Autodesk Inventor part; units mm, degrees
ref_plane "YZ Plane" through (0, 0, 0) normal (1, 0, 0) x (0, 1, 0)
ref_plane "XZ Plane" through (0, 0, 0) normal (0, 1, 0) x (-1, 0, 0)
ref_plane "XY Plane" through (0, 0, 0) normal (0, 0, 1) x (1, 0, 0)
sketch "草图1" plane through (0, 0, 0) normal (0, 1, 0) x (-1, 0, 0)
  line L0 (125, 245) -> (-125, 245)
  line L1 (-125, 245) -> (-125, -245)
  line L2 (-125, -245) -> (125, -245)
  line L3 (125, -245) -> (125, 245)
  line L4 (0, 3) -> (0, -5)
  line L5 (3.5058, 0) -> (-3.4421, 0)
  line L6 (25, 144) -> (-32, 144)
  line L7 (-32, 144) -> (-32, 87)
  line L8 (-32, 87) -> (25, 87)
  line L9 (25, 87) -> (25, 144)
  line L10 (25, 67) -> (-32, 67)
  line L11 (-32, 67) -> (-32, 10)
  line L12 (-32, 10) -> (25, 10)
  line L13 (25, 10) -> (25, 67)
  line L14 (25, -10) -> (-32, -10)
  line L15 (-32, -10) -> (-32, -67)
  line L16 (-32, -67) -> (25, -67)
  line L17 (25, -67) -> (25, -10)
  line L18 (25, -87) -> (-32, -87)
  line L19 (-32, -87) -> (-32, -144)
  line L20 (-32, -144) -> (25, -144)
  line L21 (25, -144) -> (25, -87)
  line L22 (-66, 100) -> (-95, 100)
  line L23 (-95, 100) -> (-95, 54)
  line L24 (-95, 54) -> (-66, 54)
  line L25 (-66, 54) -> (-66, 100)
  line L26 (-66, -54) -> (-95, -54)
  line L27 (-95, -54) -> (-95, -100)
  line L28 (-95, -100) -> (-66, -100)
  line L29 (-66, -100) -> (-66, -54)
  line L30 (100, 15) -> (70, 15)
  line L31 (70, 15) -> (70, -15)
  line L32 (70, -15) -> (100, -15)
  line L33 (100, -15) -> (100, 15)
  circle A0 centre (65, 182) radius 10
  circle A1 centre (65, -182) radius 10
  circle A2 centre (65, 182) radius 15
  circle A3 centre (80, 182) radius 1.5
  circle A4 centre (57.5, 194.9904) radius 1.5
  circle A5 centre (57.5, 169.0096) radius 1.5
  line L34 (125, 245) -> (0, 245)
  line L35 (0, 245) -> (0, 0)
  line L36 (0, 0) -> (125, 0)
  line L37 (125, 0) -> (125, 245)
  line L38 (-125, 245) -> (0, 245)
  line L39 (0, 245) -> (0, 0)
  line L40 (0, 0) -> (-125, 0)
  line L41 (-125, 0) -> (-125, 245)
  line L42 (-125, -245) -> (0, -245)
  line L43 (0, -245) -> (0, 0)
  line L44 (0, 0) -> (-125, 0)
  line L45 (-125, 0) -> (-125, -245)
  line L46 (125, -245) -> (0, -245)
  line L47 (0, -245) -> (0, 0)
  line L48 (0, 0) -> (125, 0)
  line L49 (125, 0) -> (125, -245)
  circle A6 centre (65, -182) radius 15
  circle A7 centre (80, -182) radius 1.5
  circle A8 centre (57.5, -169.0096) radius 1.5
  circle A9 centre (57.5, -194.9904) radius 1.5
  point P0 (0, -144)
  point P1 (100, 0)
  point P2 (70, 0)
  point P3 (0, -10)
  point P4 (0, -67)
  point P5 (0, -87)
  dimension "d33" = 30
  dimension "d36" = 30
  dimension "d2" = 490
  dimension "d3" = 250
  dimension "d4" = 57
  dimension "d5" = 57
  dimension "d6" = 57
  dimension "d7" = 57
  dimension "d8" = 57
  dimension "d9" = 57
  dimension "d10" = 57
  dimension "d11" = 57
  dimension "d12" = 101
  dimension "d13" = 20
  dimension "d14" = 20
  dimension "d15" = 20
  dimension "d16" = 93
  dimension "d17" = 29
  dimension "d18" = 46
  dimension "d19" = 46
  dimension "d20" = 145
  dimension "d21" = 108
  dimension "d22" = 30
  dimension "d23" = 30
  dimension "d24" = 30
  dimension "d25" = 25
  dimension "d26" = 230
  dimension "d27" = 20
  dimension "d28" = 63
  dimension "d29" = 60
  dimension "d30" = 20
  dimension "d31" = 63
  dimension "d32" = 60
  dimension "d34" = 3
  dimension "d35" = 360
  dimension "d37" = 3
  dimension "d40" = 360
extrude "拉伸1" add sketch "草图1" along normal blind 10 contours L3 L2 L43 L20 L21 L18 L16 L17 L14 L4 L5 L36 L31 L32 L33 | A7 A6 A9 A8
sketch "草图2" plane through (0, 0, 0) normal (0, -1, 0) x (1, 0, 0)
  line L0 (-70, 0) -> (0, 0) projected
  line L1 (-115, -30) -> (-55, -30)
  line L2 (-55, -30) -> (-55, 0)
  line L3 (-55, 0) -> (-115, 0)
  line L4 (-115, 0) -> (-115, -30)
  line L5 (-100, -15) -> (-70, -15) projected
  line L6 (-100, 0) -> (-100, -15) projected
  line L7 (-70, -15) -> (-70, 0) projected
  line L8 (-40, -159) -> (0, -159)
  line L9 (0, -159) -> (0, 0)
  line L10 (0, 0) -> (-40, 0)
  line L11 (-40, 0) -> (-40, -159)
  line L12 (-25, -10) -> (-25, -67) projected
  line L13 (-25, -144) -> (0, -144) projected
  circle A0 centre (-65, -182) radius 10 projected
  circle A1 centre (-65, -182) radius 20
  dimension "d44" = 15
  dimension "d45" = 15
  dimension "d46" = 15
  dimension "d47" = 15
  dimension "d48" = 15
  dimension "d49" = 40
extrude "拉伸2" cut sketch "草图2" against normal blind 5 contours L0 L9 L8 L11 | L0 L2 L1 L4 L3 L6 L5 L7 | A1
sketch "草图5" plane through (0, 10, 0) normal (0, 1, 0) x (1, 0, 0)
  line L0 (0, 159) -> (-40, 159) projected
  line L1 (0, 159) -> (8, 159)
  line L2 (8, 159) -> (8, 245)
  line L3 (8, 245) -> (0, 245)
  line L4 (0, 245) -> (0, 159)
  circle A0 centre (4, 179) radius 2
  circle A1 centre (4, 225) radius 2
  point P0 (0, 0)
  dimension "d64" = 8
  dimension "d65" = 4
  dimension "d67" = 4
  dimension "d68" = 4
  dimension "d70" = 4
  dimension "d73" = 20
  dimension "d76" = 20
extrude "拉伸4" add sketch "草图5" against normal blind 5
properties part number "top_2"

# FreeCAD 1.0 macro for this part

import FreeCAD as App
import Part
import Sketcher
Q = App.Units.Quantity


def add_polygon(sketch, points):
    """Adds a closed chain of lines whose ends are joined by coincident constraints."""
    first, n = sketch.GeometryCount, len(points)
    for a, b in zip(points, points[1:] + points[:1]):
        sketch.addGeometry(Part.LineSegment(App.Vector(*a, 0), App.Vector(*b, 0)), False)
    for i in range(n):
        sketch.addConstraint(Sketcher.Constraint("Coincident", first + i, 2, first + (i + 1) % n, 1))

doc = App.newDocument("Part")
body = doc.addObject("PartDesign::Body", "Body")

# Sketch on XZ plane
sketch1 = doc.addObject("Sketcher::SketchObject", "Sketch")
body.addObject(sketch1)
sketch1.AttachmentSupport = (doc.XZ_Plane, [""])
sketch1.MapMode = "FlatFace"
add_polygon(sketch1, [(-125, -245), (-125, 0), (-100, 0), (-100, -15), (-70, -15), (-70, 0), (0, 0), (0, -10), (-25, -10), (-25, -67), (0, -67), (0, -87), (-25, -87), (-25, -144), (0, -144), (0, -245)])  # lines 0-15
sketch1.addGeometry(Part.Circle(App.Vector(-57.5, -169, 0), App.Vector(0, 0, 1), 1.5), False)  # 16
sketch1.addGeometry(Part.Circle(App.Vector(-57.5, -195, 0), App.Vector(0, 0, 1), 1.5), False)  # 17
sketch1.addGeometry(Part.Circle(App.Vector(-80, -182, 0), App.Vector(0, 0, 1), 1.5), False)  # 18
sketch1.addGeometry(Part.Circle(App.Vector(-65, -182, 0), App.Vector(0, 0, 1), 10), False)  # 19
sketch1.addConstraint(Sketcher.Constraint("Vertical", 0))
sketch1.addConstraint(Sketcher.Constraint("Horizontal", 1))
sketch1.addConstraint(Sketcher.Constraint("Vertical", 2))
sketch1.addConstraint(Sketcher.Constraint("Horizontal", 3))
sketch1.addConstraint(Sketcher.Constraint("Vertical", 4))
sketch1.addConstraint(Sketcher.Constraint("Horizontal", 5))
sketch1.addConstraint(Sketcher.Constraint("Vertical", 6))
sketch1.addConstraint(Sketcher.Constraint("Horizontal", 7))
sketch1.addConstraint(Sketcher.Constraint("Vertical", 8))
sketch1.addConstraint(Sketcher.Constraint("Horizontal", 9))
sketch1.addConstraint(Sketcher.Constraint("Vertical", 10))
sketch1.addConstraint(Sketcher.Constraint("Horizontal", 11))
sketch1.addConstraint(Sketcher.Constraint("Vertical", 12))
sketch1.addConstraint(Sketcher.Constraint("Horizontal", 13))
sketch1.addConstraint(Sketcher.Constraint("Vertical", 14))
sketch1.addConstraint(Sketcher.Constraint("Horizontal", 15))
sketch1.addConstraint(Sketcher.Constraint("Coincident", 5, 2, -1, 1))
sketch1.addConstraint(Sketcher.Constraint("Equal", 16, 17))
sketch1.addConstraint(Sketcher.Constraint("Equal", 17, 18))
sketch1.addConstraint(Sketcher.Constraint("PointOnObject", 0, 2, -1))
sketch1.addConstraint(Sketcher.Constraint("PointOnObject", 9, 2, -2))
sketch1.addConstraint(Sketcher.Constraint("PointOnObject", 13, 2, -2))
sketch1.addConstraint(Sketcher.Constraint("Horizontal", 18, 3, 19, 3))
sketch1.addConstraint(Sketcher.Constraint("Vertical", 16, 3, 17, 3))
sketch1.addConstraint(Sketcher.Constraint("Vertical", 8, 2, 11, 2))
sketch1.addConstraint(Sketcher.Constraint("Equal", 1, 7))
sketch1.addConstraint(Sketcher.Constraint("Equal", 8, 12))
sketch1.addConstraint(Sketcher.Constraint("Diameter", 16, Q("3 mm")))
sketch1.addConstraint(Sketcher.Constraint("Diameter", 19, Q("20 mm")))
sketch1.addConstraint(Sketcher.Constraint("DistanceX", 1, 1, 1, 2, Q("25 mm")))
sketch1.addConstraint(Sketcher.Constraint("DistanceX", 3, 1, 3, 2, Q("30 mm")))
sketch1.addConstraint(Sketcher.Constraint("DistanceY", 8, 2, 8, 1, Q("57 mm")))
sketch1.addConstraint(Sketcher.Constraint("DistanceY", 10, 2, 10, 1, Q("20 mm")))
sketch1.addConstraint(Sketcher.Constraint("DistanceY", 14, 2, 14, 1, Q("101 mm")))
sketch1.addConstraint(Sketcher.Constraint("DistanceX", 0, 2, 19, 3, Q("60 mm")))
sketch1.addConstraint(Sketcher.Constraint("DistanceX", 1, 2, 18, 3, Q("20 mm")))
sketch1.addConstraint(Sketcher.Constraint("DistanceY", 14, 2, 19, 3, Q("63 mm")))
sketch1.addConstraint(Sketcher.Constraint("DistanceX", 5, 1, 5, 2, Q("70 mm")))
sketch1.addConstraint(Sketcher.Constraint("DistanceY", 0, 1, 0, 2, Q("245 mm")))
sketch1.addConstraint(Sketcher.Constraint("DistanceY", 2, 2, 2, 1, Q("15 mm")))
sketch1.addConstraint(Sketcher.Constraint("DistanceX", 16, 3, -1, 1, Q("57.5 mm")))
sketch1.addConstraint(Sketcher.Constraint("DistanceY", 16, 3, -1, 1, Q("169.0096 mm")))
sketch1.addConstraint(Sketcher.Constraint("DistanceY", 17, 3, -1, 1, Q("194.9904 mm")))
pad1 = doc.addObject("PartDesign::Pad", "Pad")
body.addObject(pad1)
pad1.Profile = sketch1
pad1.Length = 10
pad1.Reversed = True

# Sketch on XZ plane
sketch2 = doc.addObject("Sketcher::SketchObject", "Sketch001")
body.addObject(sketch2)
sketch2.AttachmentSupport = (doc.XZ_Plane, [""])
sketch2.MapMode = "FlatFace"
add_polygon(sketch2, [(0, 0), (-40, 0), (-40, -159), (0, -159)])  # lines 0-3
add_polygon(sketch2, [(-55, 0), (-70, 0), (-70, -15), (-100, -15), (-100, 0), (-115, 0), (-115, -30), (-55, -30)])  # lines 4-11
sketch2.addGeometry(Part.Circle(App.Vector(-65, -182, 0), App.Vector(0, 0, 1), 20), False)  # 12
sketch2.addGeometry(Part.Circle(App.Vector(-65, -182, 0), App.Vector(0, 0, 1), 10), False)  # 13
sketch2.addConstraint(Sketcher.Constraint("Horizontal", 0))
sketch2.addConstraint(Sketcher.Constraint("Vertical", 1))
sketch2.addConstraint(Sketcher.Constraint("Horizontal", 2))
sketch2.addConstraint(Sketcher.Constraint("Vertical", 3))
sketch2.addConstraint(Sketcher.Constraint("Horizontal", 4))
sketch2.addConstraint(Sketcher.Constraint("Vertical", 5))
sketch2.addConstraint(Sketcher.Constraint("Horizontal", 6))
sketch2.addConstraint(Sketcher.Constraint("Vertical", 7))
sketch2.addConstraint(Sketcher.Constraint("Horizontal", 8))
sketch2.addConstraint(Sketcher.Constraint("Vertical", 9))
sketch2.addConstraint(Sketcher.Constraint("Horizontal", 10))
sketch2.addConstraint(Sketcher.Constraint("Vertical", 11))
sketch2.addConstraint(Sketcher.Constraint("Coincident", 3, 2, -1, 1))
sketch2.addConstraint(Sketcher.Constraint("Coincident", 13, 3, 12, 3))
sketch2.addConstraint(Sketcher.Constraint("PointOnObject", 4, 2, -1))
sketch2.addConstraint(Sketcher.Constraint("PointOnObject", 7, 2, -1))
sketch2.addConstraint(Sketcher.Constraint("Equal", 4, 8))
sketch2.addConstraint(Sketcher.Constraint("Equal", 8, 5))
sketch2.addConstraint(Sketcher.Constraint("Equal", 6, 9))
sketch2.addConstraint(Sketcher.Constraint("Diameter", 12, Q("40 mm")))
sketch2.addConstraint(Sketcher.Constraint("DistanceX", 0, 2, 0, 1, Q("40 mm")))
sketch2.addConstraint(Sketcher.Constraint("DistanceX", 4, 2, 4, 1, Q("15 mm")))
sketch2.addConstraint(Sketcher.Constraint("Diameter", 13, Q("20 mm")))
sketch2.addConstraint(Sketcher.Constraint("DistanceY", 9, 2, 6, 2, Q("15 mm")))
sketch2.addConstraint(Sketcher.Constraint("DistanceX", 10, 2, 0, 2, Q("15 mm")))
sketch2.addConstraint(Sketcher.Constraint("DistanceY", 1, 2, 1, 1, Q("159 mm")))
sketch2.addConstraint(Sketcher.Constraint("DistanceX", 12, 3, -1, 1, Q("65 mm")))
sketch2.addConstraint(Sketcher.Constraint("DistanceY", 12, 3, -1, 1, Q("182 mm")))
pocket1 = doc.addObject("PartDesign::Pocket", "Pocket")
body.addObject(pocket1)
pocket1.Profile = sketch2
pocket1.Length = 5

# Sketch on XZ plane
sketch3 = doc.addObject("Sketcher::SketchObject", "Sketch002")
body.addObject(sketch3)
sketch3.AttachmentSupport = (doc.XZ_Plane, [""])
sketch3.MapMode = "FlatFace"
sketch3.AttachmentOffset = App.Placement(App.Vector(0, 0, -10), App.Rotation())
add_polygon(sketch3, [(0, -245), (0, -159), (8, -159), (8, -245)])  # lines 0-3
sketch3.addGeometry(Part.Circle(App.Vector(4, -179, 0), App.Vector(0, 0, 1), 2), False)  # 4
sketch3.addGeometry(Part.Circle(App.Vector(4, -225, 0), App.Vector(0, 0, 1), 2), False)  # 5
sketch3.addConstraint(Sketcher.Constraint("Vertical", 0))
sketch3.addConstraint(Sketcher.Constraint("Horizontal", 1))
sketch3.addConstraint(Sketcher.Constraint("Vertical", 2))
sketch3.addConstraint(Sketcher.Constraint("Horizontal", 3))
sketch3.addConstraint(Sketcher.Constraint("Equal", 4, 5))
sketch3.addConstraint(Sketcher.Constraint("PointOnObject", 0, 2, -2))
sketch3.addConstraint(Sketcher.Constraint("Vertical", 4, 3, 5, 3))
sketch3.addConstraint(Sketcher.Constraint("Diameter", 4, Q("4 mm")))
sketch3.addConstraint(Sketcher.Constraint("DistanceX", 1, 1, 1, 2, Q("8 mm")))
sketch3.addConstraint(Sketcher.Constraint("DistanceX", -1, 1, 4, 3, Q("4 mm")))
sketch3.addConstraint(Sketcher.Constraint("DistanceY", 4, 3, 0, 2, Q("20 mm")))
sketch3.addConstraint(Sketcher.Constraint("DistanceY", 2, 2, 5, 3, Q("20 mm")))
sketch3.addConstraint(Sketcher.Constraint("DistanceY", 0, 1, 0, 2, Q("86 mm")))
sketch3.addConstraint(Sketcher.Constraint("DistanceY", 4, 3, -1, 1, Q("179 mm")))
pad2 = doc.addObject("PartDesign::Pad", "Pad001")
body.addObject(pad2)
pad2.Profile = sketch3
pad2.Length = 5

doc.recompute()
